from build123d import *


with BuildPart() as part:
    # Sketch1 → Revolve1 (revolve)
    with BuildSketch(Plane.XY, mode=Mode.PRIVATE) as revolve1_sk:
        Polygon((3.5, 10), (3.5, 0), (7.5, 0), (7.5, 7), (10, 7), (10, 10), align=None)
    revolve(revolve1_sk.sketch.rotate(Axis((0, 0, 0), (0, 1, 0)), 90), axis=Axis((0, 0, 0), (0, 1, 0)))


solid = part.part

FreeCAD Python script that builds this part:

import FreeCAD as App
import Part
import Sketcher

V = App.Vector
Q = App.Units.Quantity


def add_polygon(sketch, points):
    """Adds a closed chain of lines whose ends are joined by coincident constraints."""
    first, n = sketch.GeometryCount, len(points)
    for a, b in zip(points, points[1:] + points[:1]):
        sketch.addGeometry(Part.LineSegment(App.Vector(*a, 0), App.Vector(*b, 0)), False)
    for i in range(n):
        sketch.addConstraint(Sketcher.Constraint("Coincident", first + i, 2, first + (i + 1) % n, 1))

doc = App.newDocument("Part")
body = doc.addObject("PartDesign::Body", "Body")

# Sketch on XY plane
sketch1 = doc.addObject("Sketcher::SketchObject", "Sketch")
body.addObject(sketch1)
sketch1.AttachmentSupport = (doc.XY_Plane, [""])
sketch1.MapMode = "FlatFace"
add_polygon(sketch1, [(3.5, 10), (3.5, 0), (7.5, 0), (7.5, 7), (10, 7), (10, 10)])  # lines 0-5
sketch1.addConstraint([
    Sketcher.Constraint("Vertical", 0),
    Sketcher.Constraint("Horizontal", 1),
    Sketcher.Constraint("Vertical", 2),
    Sketcher.Constraint("Horizontal", 3),
    Sketcher.Constraint("Vertical", 4),
    Sketcher.Constraint("Horizontal", 5),
    Sketcher.Constraint("PointOnObject", 0, 2, -1),
    Sketcher.Constraint("DistanceX", 1, 1, 1, 2, Q("4 mm")),
    Sketcher.Constraint("DistanceY", 0, 2, 0, 1, Q("10 mm")),
    Sketcher.Constraint("DistanceY", 2, 1, 2, 2, Q("7 mm")),
    Sketcher.Constraint("DistanceX", 3, 1, 3, 2, Q("2.5 mm")),
    Sketcher.Constraint("DistanceX", -1, 1, 3, 2, Q("10 mm")),
])
revolution = doc.addObject("PartDesign::Revolution", "Revolution")
body.addObject(revolution)
revolution.Profile = sketch1
revolution.ReferenceAxis = (sketch1, ["V_Axis"])
revolution.Angle = 360

doc.recompute()
